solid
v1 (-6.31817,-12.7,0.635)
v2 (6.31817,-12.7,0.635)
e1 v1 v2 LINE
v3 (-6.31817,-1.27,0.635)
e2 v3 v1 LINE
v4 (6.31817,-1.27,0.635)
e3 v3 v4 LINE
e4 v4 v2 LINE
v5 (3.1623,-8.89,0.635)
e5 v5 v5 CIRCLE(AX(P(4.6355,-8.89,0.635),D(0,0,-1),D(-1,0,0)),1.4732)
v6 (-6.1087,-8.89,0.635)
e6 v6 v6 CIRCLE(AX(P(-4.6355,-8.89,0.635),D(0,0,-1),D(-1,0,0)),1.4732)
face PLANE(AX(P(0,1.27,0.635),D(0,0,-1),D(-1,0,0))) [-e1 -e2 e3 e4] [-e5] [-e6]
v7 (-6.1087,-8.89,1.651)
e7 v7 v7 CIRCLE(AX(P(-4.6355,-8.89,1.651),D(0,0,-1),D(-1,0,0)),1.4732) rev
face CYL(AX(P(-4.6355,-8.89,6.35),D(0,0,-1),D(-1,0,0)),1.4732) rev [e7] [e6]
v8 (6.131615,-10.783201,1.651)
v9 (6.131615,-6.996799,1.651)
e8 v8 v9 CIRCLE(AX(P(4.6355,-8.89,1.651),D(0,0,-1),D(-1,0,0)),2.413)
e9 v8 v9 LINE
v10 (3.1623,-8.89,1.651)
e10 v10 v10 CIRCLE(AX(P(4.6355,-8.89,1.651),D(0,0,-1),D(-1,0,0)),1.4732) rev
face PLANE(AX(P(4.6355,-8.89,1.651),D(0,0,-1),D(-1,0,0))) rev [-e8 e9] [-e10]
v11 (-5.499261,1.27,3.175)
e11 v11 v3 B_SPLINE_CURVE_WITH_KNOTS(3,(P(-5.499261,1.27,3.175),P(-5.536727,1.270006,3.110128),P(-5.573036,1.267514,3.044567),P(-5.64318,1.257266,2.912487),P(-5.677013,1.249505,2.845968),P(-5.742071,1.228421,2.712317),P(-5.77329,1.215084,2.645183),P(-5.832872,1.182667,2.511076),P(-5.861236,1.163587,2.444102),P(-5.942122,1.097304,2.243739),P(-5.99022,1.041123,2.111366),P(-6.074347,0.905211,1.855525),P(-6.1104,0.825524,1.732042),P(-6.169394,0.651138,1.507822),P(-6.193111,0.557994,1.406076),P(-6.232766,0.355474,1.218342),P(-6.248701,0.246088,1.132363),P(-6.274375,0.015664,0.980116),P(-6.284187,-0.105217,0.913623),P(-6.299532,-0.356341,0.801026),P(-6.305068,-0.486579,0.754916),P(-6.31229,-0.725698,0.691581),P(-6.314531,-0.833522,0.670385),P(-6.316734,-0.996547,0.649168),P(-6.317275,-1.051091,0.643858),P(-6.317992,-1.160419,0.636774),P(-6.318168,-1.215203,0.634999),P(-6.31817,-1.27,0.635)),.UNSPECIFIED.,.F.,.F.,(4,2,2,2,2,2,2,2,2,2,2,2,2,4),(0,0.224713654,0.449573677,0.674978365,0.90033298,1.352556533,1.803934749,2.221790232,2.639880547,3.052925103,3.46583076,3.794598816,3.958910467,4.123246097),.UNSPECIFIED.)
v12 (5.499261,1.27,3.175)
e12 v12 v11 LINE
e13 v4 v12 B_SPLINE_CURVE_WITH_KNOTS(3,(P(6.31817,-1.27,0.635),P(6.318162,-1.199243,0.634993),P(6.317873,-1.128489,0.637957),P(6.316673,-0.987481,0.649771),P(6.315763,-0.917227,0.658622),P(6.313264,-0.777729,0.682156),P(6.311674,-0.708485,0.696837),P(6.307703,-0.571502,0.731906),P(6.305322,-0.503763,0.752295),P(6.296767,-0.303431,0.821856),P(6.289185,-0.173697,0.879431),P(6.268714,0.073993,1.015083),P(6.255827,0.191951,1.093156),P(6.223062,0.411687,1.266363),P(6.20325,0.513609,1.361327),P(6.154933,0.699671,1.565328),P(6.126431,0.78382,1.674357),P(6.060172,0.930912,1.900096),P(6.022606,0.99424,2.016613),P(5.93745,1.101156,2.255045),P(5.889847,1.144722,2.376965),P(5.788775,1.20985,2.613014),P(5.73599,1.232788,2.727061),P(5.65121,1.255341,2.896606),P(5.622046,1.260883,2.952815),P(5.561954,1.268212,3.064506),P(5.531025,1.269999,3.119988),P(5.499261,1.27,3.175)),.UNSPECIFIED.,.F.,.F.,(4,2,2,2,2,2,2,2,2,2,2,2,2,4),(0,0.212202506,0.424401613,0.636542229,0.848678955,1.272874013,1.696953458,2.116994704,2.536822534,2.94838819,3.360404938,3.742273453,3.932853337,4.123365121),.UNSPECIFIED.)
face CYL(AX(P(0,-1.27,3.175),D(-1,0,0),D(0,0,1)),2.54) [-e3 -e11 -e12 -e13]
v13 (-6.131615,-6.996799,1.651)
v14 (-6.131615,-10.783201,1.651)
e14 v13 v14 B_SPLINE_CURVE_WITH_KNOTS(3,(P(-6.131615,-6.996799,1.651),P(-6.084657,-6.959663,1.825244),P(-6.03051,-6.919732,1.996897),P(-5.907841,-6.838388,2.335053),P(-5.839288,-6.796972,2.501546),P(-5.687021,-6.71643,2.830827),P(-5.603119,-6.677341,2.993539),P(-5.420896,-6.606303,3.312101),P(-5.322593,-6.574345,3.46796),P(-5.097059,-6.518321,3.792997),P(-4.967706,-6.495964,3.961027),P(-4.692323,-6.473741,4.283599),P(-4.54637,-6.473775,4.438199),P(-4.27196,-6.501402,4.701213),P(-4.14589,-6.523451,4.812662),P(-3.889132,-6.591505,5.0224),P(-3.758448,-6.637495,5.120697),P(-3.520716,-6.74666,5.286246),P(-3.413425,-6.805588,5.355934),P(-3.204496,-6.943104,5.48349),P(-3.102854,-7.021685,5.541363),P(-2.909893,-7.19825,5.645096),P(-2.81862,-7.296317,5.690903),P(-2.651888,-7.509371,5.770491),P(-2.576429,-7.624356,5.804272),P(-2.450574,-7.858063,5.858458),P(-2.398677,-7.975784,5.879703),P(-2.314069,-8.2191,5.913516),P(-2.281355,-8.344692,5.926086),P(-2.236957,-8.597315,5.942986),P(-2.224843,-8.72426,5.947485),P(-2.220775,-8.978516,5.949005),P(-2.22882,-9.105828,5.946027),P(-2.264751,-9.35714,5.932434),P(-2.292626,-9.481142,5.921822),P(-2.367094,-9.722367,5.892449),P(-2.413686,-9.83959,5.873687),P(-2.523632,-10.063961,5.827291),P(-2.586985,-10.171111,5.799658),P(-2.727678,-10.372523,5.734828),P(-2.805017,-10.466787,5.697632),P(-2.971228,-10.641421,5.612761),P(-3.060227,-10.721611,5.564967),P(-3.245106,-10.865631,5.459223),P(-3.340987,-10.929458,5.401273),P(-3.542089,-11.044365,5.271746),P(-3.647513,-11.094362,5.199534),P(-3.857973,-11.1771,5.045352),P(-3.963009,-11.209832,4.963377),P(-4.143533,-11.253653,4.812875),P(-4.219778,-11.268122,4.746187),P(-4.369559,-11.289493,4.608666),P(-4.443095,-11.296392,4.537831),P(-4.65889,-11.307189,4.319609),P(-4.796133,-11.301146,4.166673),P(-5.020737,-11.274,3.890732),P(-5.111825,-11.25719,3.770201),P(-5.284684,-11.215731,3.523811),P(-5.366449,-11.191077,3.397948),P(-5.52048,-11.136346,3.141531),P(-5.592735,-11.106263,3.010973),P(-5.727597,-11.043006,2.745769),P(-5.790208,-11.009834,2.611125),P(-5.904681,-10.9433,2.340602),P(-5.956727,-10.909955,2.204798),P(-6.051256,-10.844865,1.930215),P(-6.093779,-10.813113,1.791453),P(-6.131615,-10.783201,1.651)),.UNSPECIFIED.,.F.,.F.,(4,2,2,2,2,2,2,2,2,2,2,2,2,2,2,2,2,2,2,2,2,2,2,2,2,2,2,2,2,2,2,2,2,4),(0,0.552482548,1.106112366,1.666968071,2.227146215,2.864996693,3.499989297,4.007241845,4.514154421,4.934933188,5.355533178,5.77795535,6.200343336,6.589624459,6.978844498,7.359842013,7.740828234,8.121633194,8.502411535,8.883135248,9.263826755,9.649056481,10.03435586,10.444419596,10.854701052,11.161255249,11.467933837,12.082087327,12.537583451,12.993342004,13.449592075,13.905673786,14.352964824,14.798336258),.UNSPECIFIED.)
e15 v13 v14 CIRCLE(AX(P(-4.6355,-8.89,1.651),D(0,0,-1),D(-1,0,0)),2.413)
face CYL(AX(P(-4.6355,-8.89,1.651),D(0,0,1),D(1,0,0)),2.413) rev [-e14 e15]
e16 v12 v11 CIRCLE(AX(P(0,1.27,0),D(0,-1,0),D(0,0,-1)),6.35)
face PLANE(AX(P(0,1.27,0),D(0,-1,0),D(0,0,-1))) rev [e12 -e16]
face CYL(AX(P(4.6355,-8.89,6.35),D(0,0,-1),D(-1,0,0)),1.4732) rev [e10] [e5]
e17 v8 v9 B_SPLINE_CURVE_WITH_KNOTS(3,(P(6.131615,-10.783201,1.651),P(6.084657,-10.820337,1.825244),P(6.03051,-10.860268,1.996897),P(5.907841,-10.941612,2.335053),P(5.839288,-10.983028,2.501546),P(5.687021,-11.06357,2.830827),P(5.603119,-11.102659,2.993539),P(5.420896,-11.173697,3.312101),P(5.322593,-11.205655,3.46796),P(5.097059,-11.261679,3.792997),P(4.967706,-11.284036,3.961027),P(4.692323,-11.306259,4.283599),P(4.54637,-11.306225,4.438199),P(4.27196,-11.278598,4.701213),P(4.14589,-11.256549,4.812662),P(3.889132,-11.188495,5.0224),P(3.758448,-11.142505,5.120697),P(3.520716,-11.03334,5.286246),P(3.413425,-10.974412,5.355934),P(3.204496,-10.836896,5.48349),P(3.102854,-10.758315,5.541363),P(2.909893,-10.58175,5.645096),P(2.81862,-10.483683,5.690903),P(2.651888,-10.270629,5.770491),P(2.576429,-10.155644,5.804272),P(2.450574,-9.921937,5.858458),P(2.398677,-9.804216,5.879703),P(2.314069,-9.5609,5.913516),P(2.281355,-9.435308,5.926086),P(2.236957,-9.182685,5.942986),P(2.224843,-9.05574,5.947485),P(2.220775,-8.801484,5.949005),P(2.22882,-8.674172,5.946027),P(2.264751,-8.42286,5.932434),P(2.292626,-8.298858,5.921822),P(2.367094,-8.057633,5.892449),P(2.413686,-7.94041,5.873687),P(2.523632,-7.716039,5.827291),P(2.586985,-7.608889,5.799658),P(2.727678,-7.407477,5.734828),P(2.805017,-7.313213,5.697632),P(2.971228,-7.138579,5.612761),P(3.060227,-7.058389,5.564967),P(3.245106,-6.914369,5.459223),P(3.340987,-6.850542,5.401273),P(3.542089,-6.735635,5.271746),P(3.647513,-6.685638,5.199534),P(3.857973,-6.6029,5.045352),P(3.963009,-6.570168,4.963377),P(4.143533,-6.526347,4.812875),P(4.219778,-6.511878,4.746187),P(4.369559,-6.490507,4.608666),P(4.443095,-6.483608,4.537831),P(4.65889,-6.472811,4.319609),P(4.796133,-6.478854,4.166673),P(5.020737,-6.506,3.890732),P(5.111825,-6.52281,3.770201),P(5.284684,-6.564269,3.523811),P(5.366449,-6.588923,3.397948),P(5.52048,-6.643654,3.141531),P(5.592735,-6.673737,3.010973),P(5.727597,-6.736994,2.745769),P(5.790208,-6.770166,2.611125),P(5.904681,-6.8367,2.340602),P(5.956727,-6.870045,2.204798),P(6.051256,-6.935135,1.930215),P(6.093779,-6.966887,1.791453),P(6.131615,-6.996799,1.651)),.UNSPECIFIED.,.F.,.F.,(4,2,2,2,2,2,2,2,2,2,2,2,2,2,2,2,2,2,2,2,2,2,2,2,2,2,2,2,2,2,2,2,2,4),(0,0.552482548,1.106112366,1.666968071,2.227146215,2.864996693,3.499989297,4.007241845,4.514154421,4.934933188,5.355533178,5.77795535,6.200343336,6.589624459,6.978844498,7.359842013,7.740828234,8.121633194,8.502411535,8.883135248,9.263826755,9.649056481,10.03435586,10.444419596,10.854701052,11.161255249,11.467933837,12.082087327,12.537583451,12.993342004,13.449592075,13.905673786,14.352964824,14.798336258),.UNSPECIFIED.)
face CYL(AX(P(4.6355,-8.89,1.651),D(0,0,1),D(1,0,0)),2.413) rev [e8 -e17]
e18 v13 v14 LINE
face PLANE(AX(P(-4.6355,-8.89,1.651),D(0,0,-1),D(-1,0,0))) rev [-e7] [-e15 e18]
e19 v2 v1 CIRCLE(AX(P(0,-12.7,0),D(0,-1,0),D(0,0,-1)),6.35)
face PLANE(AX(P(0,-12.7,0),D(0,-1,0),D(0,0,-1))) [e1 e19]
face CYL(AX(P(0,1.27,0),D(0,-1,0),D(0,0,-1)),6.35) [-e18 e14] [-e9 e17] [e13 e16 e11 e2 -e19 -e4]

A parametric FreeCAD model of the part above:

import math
import FreeCAD as App
import Part
import Sketcher
from FreeCAD import Vector
Q = App.Units.Quantity


def edges_at(feature, points):
    """Names of the edges that pass closest to the given points."""
    edges = feature.Shape.Edges
    near = lambda p: min(range(len(edges)), key=lambda i: edges[i].distToShape(Part.Vertex(*p))[0])
    return sorted({f"Edge{near(p) + 1}" for p in points})

doc = App.newDocument("Part")
body = doc.addObject("PartDesign::Body", "Body")

sketch1 = body.newObject("Sketcher::SketchObject", "Sketch")
sketch1.AttachmentSupport = (doc.getObject("XZ_Plane"), [""])
sketch1.MapMode = "FlatFace"
sketch1.AttachmentOffset = App.Placement(Vector(0, 0, 0.5 * 25.4), App.Rotation())
sketch1.addGeometry([
    Part.ArcOfCircle(Part.Circle(Vector(0, 0, 0), Vector(0, 0, 1), 6.35), math.radians(5.73917), math.radians(174.26083)),
    Part.LineSegment(Vector(-6.31817, 0.635, 0), Vector(6.31817, 0.635, 0)),
], False)
sketch1.addConstraint([
    Sketcher.Constraint("Coincident", 0, 1, 1, 2),
    Sketcher.Constraint("Coincident", 1, 1, 0, 2),
    Sketcher.Constraint("Horizontal", 1),
    Sketcher.Constraint("Coincident", 0, 3, -1, 1),
    Sketcher.Constraint("Radius", 0, Q("0.25 in")),
    Sketcher.Constraint("DistanceY", -1, 1, 0, 1, Q("0.025 in")),
])
pad1 = body.newObject("PartDesign::Pad", "Pad")
pad1.Profile = sketch1
pad1.Length = Q("0.55 in")
pad1.Reversed = True
doc.recompute()

fillet = body.newObject("PartDesign::Fillet", "Fillet")
fillet.Base = (pad1, edges_at(pad1, [(0, 1.27, 0.635)]))
fillet.Radius = Q("0.1 in")

sketch2 = body.newObject("Sketcher::SketchObject", "Sketch001")
sketch2.AttachmentSupport = (doc.getObject("XY_Plane"), [""])
sketch2.MapMode = "FlatFace"
sketch2.AttachmentOffset = App.Placement(Vector(0, 0, 0.025 * 25.4), App.Rotation())
sketch2.addGeometry([
    Part.Circle(Vector(-4.6355, -8.89, 0), Vector(0, 0, 1), 1.4732),
    Part.Circle(Vector(4.6355, -8.89, 0), Vector(0, 0, 1), 1.4732),
], False)
sketch2.addConstraint([
    Sketcher.Constraint("Equal", 0, 1),
    Sketcher.Constraint("Symmetric", 0, 3, 1, 3, -2),
    Sketcher.Constraint("Diameter", 0, Q("0.116 in")),
    Sketcher.Constraint("DistanceY", 0, 3, -1, 1, Q("0.35 in")),
    Sketcher.Constraint("DistanceX", 0, 3, 1, 3, Q("0.365 in")),
])
pocket1 = body.newObject("PartDesign::Pocket", "Pocket")
pocket1.Profile = sketch2
pocket1.Type = "ThroughAll"
pocket1.Reversed = True

sketch3 = body.newObject("Sketcher::SketchObject", "Sketch002")
sketch3.AttachmentSupport = (doc.getObject("XY_Plane"), [""])
sketch3.MapMode = "FlatFace"
sketch3.AttachmentOffset = App.Placement(Vector(0, 0, 0.275 * 25.4), App.Rotation())
sketch3.addGeometry([
    Part.Circle(Vector(-4.6355, -8.89, 0), Vector(0, 0, 1), 2.413),
    Part.Circle(Vector(4.6355, -8.89, 0), Vector(0, 0, 1), 2.413),
], False)
sketch3.addConstraint([
    Sketcher.Constraint("Equal", 0, 1),
    Sketcher.Constraint("Symmetric", 0, 3, 1, 3, -2),
    Sketcher.Constraint("Diameter", 0, Q("0.19 in")),
    Sketcher.Constraint("DistanceY", 0, 3, -1, 1, Q("0.35 in")),
    Sketcher.Constraint("DistanceX", 0, 3, 1, 3, Q("0.365 in")),
])
pocket2 = body.newObject("PartDesign::Pocket", "Pocket001")
pocket2.Profile = sketch3
pocket2.Length = Q("0.21 in")

doc.recompute()
